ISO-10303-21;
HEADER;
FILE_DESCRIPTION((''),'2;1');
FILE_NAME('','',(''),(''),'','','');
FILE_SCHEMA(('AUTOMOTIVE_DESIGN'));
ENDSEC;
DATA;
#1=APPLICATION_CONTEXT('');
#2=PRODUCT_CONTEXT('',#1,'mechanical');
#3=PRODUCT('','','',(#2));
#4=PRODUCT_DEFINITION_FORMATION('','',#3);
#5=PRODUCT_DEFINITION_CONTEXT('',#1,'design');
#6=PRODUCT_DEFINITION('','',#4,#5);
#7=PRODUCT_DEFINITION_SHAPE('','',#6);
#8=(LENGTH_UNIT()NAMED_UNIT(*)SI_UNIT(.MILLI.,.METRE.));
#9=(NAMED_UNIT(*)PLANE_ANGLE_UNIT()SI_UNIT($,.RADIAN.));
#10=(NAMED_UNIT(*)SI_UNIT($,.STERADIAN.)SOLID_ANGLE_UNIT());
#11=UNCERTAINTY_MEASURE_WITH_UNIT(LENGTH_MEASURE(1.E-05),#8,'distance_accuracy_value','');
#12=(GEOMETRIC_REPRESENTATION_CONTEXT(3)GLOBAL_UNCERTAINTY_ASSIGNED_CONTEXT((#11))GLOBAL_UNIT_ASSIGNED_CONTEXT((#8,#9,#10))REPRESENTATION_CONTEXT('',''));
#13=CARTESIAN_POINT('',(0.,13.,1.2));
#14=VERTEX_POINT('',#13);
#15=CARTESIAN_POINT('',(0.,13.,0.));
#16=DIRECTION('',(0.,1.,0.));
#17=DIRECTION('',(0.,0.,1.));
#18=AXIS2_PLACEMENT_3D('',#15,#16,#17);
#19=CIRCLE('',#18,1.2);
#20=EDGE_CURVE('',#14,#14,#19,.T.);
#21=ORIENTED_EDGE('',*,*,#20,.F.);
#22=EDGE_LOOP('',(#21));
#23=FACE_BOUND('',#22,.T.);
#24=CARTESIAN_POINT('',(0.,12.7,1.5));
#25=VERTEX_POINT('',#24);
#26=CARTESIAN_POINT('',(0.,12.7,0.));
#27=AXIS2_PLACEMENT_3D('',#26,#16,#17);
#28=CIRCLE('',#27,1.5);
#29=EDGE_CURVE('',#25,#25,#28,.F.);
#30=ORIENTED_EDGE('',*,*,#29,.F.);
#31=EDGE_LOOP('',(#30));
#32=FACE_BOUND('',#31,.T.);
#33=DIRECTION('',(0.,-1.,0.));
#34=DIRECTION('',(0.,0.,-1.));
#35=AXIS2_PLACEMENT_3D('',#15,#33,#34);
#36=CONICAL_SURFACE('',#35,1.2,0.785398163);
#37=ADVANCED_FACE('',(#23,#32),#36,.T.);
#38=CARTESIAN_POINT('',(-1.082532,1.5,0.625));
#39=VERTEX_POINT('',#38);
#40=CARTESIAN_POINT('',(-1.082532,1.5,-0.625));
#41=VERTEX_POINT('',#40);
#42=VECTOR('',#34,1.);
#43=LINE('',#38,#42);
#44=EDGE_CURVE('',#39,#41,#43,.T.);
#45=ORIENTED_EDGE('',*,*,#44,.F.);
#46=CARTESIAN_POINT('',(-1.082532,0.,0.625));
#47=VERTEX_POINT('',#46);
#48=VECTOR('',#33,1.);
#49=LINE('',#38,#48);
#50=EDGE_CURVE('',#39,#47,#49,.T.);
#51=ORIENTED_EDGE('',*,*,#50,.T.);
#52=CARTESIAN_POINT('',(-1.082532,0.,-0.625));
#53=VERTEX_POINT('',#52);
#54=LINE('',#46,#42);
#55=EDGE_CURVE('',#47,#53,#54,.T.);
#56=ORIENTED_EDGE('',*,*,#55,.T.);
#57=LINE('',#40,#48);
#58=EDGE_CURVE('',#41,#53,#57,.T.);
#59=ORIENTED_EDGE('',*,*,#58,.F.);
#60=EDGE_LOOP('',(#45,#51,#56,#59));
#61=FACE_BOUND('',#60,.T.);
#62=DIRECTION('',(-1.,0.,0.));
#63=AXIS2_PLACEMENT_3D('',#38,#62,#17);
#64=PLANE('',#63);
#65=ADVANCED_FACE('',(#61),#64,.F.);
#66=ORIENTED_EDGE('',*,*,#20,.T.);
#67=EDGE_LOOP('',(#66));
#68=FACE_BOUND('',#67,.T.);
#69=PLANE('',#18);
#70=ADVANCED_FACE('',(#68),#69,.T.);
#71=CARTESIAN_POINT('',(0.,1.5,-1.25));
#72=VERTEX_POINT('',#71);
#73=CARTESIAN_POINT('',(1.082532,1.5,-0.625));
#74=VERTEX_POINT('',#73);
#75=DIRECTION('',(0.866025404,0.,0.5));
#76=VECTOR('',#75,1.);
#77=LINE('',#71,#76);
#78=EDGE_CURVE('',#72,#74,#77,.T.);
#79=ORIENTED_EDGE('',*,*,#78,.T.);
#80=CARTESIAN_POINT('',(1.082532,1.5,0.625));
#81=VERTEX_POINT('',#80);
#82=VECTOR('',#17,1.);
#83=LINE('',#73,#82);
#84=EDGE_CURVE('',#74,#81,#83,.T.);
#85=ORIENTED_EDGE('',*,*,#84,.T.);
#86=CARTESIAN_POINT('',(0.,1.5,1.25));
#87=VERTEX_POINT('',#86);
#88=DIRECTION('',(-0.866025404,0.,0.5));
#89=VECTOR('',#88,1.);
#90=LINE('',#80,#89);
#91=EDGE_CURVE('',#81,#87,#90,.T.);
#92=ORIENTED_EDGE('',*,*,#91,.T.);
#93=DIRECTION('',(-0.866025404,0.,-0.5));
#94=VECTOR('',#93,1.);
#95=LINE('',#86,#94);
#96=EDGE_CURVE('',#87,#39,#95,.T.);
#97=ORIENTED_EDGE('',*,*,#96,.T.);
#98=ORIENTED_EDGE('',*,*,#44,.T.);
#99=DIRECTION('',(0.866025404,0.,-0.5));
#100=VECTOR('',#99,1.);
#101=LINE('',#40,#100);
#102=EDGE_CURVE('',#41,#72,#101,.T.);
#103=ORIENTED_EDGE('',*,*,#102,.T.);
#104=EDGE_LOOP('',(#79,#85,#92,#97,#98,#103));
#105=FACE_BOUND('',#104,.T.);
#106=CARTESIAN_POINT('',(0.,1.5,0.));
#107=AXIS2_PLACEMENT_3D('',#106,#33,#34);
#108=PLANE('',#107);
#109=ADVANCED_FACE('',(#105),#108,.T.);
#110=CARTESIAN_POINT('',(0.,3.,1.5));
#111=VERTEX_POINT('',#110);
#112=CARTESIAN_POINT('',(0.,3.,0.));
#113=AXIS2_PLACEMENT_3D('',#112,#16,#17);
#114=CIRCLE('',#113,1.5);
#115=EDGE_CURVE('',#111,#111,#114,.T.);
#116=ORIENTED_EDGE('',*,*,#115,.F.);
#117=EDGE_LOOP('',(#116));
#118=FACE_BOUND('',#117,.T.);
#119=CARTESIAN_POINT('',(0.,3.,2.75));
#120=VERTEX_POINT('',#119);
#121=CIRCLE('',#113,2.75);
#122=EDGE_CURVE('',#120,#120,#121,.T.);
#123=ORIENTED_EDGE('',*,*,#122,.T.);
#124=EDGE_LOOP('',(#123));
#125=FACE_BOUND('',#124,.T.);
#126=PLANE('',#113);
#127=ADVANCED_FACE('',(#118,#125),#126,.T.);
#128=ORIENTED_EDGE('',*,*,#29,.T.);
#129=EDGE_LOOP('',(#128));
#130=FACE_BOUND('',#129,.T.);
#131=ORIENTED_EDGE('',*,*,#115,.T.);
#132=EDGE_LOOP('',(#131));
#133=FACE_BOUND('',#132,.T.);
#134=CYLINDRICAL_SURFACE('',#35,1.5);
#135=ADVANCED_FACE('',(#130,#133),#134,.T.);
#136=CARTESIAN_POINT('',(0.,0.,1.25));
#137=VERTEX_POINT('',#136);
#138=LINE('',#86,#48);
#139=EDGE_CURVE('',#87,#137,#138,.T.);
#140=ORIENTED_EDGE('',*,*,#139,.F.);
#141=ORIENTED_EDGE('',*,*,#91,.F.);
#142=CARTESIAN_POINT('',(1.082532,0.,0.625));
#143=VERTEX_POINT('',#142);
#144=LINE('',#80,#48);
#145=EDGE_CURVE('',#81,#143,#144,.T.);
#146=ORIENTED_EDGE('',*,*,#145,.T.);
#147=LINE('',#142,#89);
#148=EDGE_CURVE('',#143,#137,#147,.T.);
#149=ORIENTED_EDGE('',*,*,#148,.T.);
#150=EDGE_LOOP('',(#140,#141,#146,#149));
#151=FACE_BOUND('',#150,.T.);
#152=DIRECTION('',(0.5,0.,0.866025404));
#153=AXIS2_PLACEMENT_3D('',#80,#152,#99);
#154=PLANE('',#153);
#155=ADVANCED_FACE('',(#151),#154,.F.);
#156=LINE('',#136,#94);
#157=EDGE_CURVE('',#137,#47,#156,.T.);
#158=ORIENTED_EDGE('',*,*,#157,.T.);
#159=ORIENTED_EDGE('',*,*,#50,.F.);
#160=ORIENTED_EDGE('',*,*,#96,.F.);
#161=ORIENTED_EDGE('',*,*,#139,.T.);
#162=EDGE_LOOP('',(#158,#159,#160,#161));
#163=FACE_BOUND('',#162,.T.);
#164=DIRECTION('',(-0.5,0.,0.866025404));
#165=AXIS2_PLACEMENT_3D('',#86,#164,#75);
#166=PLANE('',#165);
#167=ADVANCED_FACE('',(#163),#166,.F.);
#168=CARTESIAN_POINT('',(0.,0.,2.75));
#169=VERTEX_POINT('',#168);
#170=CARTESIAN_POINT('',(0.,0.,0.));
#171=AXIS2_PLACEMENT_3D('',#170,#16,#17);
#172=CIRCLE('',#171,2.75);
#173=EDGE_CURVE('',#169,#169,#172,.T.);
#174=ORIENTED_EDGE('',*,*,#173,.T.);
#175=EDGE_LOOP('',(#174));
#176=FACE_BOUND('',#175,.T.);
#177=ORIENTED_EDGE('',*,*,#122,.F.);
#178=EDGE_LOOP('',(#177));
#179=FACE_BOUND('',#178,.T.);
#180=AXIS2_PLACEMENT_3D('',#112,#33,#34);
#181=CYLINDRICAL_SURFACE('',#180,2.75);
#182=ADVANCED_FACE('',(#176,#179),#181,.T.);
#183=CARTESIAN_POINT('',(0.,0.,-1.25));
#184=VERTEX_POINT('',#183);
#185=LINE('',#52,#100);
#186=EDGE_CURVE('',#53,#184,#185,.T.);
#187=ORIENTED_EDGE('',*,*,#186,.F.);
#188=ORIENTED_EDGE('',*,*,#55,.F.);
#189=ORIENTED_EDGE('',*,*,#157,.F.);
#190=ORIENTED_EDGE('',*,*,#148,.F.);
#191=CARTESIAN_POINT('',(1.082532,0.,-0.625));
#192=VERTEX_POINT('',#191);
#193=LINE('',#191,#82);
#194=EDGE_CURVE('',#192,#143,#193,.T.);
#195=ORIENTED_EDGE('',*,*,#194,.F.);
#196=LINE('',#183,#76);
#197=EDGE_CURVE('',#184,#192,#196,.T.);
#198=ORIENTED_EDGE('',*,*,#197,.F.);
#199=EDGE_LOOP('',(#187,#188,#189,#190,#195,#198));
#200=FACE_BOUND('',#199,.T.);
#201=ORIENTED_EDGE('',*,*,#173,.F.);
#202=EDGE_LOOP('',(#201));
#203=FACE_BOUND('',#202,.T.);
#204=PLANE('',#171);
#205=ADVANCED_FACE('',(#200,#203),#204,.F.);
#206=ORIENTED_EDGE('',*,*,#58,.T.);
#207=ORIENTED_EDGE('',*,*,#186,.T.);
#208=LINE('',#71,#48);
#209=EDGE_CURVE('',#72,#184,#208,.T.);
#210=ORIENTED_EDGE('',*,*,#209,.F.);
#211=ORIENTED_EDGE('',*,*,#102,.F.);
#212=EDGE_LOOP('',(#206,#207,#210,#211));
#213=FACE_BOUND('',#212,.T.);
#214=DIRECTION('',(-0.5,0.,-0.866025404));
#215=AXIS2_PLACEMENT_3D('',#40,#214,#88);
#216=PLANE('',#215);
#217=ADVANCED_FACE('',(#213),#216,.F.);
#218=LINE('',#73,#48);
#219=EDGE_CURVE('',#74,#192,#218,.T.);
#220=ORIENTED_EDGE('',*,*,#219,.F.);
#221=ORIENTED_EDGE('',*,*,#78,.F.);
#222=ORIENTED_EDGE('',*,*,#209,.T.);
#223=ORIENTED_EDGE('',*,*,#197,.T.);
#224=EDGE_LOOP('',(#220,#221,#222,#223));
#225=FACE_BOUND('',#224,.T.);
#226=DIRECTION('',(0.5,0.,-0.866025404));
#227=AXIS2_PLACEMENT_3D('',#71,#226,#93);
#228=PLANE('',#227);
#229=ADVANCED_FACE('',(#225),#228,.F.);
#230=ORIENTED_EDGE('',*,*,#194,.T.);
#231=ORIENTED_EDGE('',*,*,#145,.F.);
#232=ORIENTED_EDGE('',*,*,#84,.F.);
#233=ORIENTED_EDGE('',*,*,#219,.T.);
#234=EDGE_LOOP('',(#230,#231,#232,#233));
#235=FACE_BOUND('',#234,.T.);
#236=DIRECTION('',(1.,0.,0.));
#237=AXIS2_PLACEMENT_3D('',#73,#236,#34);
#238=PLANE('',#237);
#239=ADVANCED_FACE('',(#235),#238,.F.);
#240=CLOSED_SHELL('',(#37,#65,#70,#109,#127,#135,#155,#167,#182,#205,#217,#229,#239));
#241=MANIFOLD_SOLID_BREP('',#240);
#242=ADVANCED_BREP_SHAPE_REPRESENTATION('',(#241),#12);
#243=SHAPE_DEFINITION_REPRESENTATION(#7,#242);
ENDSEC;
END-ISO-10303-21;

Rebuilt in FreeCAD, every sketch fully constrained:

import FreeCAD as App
import Part
import Sketcher

V = App.Vector
Q = App.Units.Quantity


def edges_at(feature, points):
    """Names of the edges that pass closest to the given points."""
    edges = feature.Shape.Edges
    near = lambda p: min(range(len(edges)), key=lambda i: edges[i].distToShape(Part.Vertex(*p))[0])
    return sorted({f"Edge{near(p) + 1}" for p in points})


def add_polygon(sketch, points):
    """Adds a closed chain of lines whose ends are joined by coincident constraints."""
    first, n = sketch.GeometryCount, len(points)
    for a, b in zip(points, points[1:] + points[:1]):
        sketch.addGeometry(Part.LineSegment(App.Vector(*a, 0), App.Vector(*b, 0)), False)
    for i in range(n):
        sketch.addConstraint(Sketcher.Constraint("Coincident", first + i, 2, first + (i + 1) % n, 1))

doc = App.newDocument("Part")
body = doc.addObject("PartDesign::Body", "Body")

# Sketch on XZ plane
sketch1 = body.newObject("Sketcher::SketchObject", "Sketch")
sketch1.AttachmentSupport = (doc.getObject("XZ_Plane"), [""])
sketch1.MapMode = "FlatFace"
sketch1.addGeometry(Part.Circle(V(0, 0, 0), V(0, 0, 1), 2.8), False)
sketch1.addConstraint([
    Sketcher.Constraint("Coincident", 0, 3, -1, 1),
    Sketcher.Constraint("Diameter", 0, 5.5),
])
pad1 = body.newObject("PartDesign::Pad", "Pad")
pad1.Profile = sketch1
pad1.Length = 3
pad1.Reversed = True

# Sketch on XZ plane
sketch2 = body.newObject("Sketcher::SketchObject", "Sketch001")
sketch2.AttachmentSupport = (doc.getObject("XZ_Plane"), [""])
sketch2.MapMode = "FlatFace"
add_polygon(sketch2, [(0, 1.2), (-1.1, 0.6), (-1.1, -0.6), (0, -1.2), (1.1, -0.6), (1.1, 0.6)])  # lines 0-5
sketch2.addConstraint([
    Sketcher.Constraint("Vertical", 1),
    Sketcher.Constraint("Vertical", 4),
    Sketcher.Constraint("Symmetric", 0, 2, 3, 2, -1, 1),
    Sketcher.Constraint("Symmetric", 2, 2, 5, 2, -1, 1),
    Sketcher.Constraint("PointOnObject", 2, 2, -2),
    Sketcher.Constraint("Parallel", 2, 5),
    Sketcher.Constraint("Horizontal", 1, 2, 3, 2),
    Sketcher.Constraint("Angle", 0, Q("-150 deg")),
    Sketcher.Constraint("DistanceY", 1, 2, 1, 1, 1.25),
    Sketcher.Constraint("DistanceY", 2, 2, 5, 2, 2.5),
])
pocket1 = body.newObject("PartDesign::Pocket", "Pocket")
pocket1.Profile = sketch2
pocket1.Length = 1.5

# Sketch on XZ plane
sketch3 = body.newObject("Sketcher::SketchObject", "Sketch002")
sketch3.AttachmentSupport = (doc.getObject("XZ_Plane"), [""])
sketch3.MapMode = "FlatFace"
sketch3.AttachmentOffset = App.Placement(V(0, 0, -3), App.Rotation())
sketch3.addGeometry(Part.Circle(V(0, 0, 0), V(0, 0, 1), 1.5), False)
sketch3.addConstraint([
    Sketcher.Constraint("Coincident", 0, 3, -1, 1),
    Sketcher.Constraint("Diameter", 0, 3.0),
])
pad2 = body.newObject("PartDesign::Pad", "Pad001")
pad2.Profile = sketch3
pad2.Length = 10
pad2.Reversed = True
doc.recompute()

chamfer = body.newObject("PartDesign::Chamfer", "Chamfer")
chamfer.Base = (pad2, edges_at(pad2, [(0, 13, -1.5)]))
chamfer.Size = 0.3

doc.recompute()
